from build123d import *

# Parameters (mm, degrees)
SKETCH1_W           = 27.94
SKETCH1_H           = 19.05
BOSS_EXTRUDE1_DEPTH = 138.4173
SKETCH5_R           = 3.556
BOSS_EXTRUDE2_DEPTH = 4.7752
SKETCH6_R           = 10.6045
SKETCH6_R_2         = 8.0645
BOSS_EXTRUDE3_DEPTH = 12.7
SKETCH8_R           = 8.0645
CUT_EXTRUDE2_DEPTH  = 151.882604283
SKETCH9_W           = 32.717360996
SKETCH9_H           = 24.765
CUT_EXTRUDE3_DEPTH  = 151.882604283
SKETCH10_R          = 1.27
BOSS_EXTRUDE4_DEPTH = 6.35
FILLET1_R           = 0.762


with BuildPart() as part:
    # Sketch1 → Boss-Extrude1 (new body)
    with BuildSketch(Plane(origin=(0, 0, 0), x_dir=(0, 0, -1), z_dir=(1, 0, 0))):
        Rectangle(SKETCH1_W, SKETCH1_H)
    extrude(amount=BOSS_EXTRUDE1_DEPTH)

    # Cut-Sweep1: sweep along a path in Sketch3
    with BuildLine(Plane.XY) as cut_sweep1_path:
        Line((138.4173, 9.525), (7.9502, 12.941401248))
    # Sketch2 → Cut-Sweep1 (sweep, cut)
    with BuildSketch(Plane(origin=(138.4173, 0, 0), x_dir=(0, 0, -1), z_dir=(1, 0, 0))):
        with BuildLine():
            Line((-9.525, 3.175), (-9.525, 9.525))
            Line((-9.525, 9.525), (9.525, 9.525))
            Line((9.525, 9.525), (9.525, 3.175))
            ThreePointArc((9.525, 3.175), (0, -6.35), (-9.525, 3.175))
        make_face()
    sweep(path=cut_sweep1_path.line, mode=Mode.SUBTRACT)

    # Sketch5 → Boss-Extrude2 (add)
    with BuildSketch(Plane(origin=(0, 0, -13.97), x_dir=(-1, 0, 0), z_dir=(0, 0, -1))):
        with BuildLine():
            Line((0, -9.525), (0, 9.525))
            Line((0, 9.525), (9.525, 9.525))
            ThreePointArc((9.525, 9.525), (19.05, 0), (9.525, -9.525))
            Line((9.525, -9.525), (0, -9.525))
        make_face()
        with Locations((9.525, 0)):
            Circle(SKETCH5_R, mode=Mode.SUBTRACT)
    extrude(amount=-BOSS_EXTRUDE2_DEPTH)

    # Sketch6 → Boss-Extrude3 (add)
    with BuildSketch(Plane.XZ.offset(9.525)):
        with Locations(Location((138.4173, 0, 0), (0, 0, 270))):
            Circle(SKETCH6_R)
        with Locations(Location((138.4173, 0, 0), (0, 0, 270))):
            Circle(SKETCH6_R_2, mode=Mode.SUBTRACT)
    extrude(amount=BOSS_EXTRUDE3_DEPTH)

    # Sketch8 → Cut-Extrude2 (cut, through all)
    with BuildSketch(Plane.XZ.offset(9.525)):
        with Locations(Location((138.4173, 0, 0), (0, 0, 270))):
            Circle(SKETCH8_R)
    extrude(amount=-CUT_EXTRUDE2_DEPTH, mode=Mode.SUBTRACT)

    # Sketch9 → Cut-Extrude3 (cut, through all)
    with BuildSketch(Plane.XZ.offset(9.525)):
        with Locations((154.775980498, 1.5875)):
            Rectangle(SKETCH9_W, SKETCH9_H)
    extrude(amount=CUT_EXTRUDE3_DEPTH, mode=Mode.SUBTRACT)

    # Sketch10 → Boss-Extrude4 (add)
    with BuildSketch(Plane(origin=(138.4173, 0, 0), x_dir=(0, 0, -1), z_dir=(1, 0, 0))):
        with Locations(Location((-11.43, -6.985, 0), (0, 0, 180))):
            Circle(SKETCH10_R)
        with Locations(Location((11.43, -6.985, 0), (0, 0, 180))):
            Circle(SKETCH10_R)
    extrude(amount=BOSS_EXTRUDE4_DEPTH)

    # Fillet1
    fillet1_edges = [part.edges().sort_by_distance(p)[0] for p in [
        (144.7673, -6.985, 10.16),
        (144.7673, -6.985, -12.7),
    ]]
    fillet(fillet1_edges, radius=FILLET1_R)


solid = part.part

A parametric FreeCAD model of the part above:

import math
import FreeCAD as App
import Part
import Sketcher
Q = App.Units.Quantity


def edges_at(feature, points):
    """Names of the edges that pass closest to the given points."""
    edges = feature.Shape.Edges
    near = lambda p: min(range(len(edges)), key=lambda i: edges[i].distToShape(Part.Vertex(*p))[0])
    return sorted({f"Edge{near(p) + 1}" for p in points})


def add_polygon(sketch, points):
    """Adds a closed chain of lines whose ends are joined by coincident constraints."""
    first, n = sketch.GeometryCount, len(points)
    for a, b in zip(points, points[1:] + points[:1]):
        sketch.addGeometry(Part.LineSegment(App.Vector(*a, 0), App.Vector(*b, 0)), False)
    for i in range(n):
        sketch.addConstraint(Sketcher.Constraint("Coincident", first + i, 2, first + (i + 1) % n, 1))

doc = App.newDocument("Part")
body = doc.addObject("PartDesign::Body", "Body")

sketch1 = doc.addObject("Sketcher::SketchObject", "Sketch")
body.addObject(sketch1)
sketch1.AttachmentSupport = (doc.YZ_Plane, [""])
sketch1.MapMode = "FlatFace"
add_polygon(sketch1, [(10, 14), (-10, 14), (-10, -14), (10, -14)])
sketch1.addConstraint(Sketcher.Constraint("Horizontal", 0))
sketch1.addConstraint(Sketcher.Constraint("Vertical", 1))
sketch1.addConstraint(Sketcher.Constraint("Horizontal", 2))
sketch1.addConstraint(Sketcher.Constraint("Vertical", 3))
sketch1.addConstraint(Sketcher.Constraint("Symmetric", 0, 2, 2, 2, -1, 1))
sketch1.addConstraint(Sketcher.Constraint("DistanceY", 1, 2, 1, 1, Q("1.1 in")))
sketch1.addConstraint(Sketcher.Constraint("DistanceX", 0, 2, 0, 1, Q("0.75 in")))
pad1 = doc.addObject("PartDesign::Pad", "Pad")
body.addObject(pad1)
pad1.Profile = sketch1
pad1.Length = Q("5.4495 in")

sketch2 = doc.addObject("Sketcher::SketchObject", "Sketch001")
body.addObject(sketch2)
sketch2.AttachmentSupport = (doc.YZ_Plane, [""])
sketch2.MapMode = "FlatFace"
sketch2.AttachmentOffset = App.Placement(App.Vector(0, 0, 5.4495 * 25.4), App.Rotation())
sketch2.addGeometry(Part.LineSegment(App.Vector(10, 10, 0), App.Vector(3, 10, 0)), False)
sketch2.addGeometry(Part.ArcOfCircle(Part.Circle(App.Vector(3, 0, 0), App.Vector(0, 0, 1), 10), math.radians(90), math.radians(270)), False)
sketch2.addGeometry(Part.LineSegment(App.Vector(3, -10, 0), App.Vector(10, -10, 0)), False)
sketch2.addGeometry(Part.LineSegment(App.Vector(10, -10, 0), App.Vector(10, 10, 0)), False)
sketch2.addConstraint(Sketcher.Constraint("Tangent", 0, 2, 1, 1))
sketch2.addConstraint(Sketcher.Constraint("Tangent", 1, 2, 2, 1))
sketch2.addConstraint(Sketcher.Constraint("Coincident", 2, 2, 3, 1))
sketch2.addConstraint(Sketcher.Constraint("Coincident", 3, 2, 0, 1))
sketch2.addConstraint(Sketcher.Constraint("Horizontal", 0))
sketch2.addConstraint(Sketcher.Constraint("Horizontal", 2))
sketch2.addConstraint(Sketcher.Constraint("Vertical", 3))
sketch2.addConstraint(Sketcher.Constraint("PointOnObject", 1, 3, -1))
sketch2.addConstraint(Sketcher.Constraint("Radius", 1, Q("0.375 in")))
sketch2.addConstraint(Sketcher.Constraint("DistanceX", 0, 2, 0, 1, Q("0.25 in")))
sketch2.addConstraint(Sketcher.Constraint("DistanceX", -1, 1, 1, 3, Q("0.125 in")))

sketch3 = doc.addObject("Sketcher::SketchObject", "Sketch002")
body.addObject(sketch3)
sketch3.Placement = App.Placement(App.Vector(0.344098, 13.140574, 0), App.Rotation(App.Vector(-0.999657325, 0.026176948, 0), App.Vector(0, 0, 1), App.Vector(0.026176948, 0.999657325, 0), "ZXY"))
sketch3.addGeometry(Part.LineSegment(App.Vector(-138, 0, 0), App.Vector(-8, 0, 0)), False)
sketch3.addConstraint(Sketcher.Constraint("Horizontal", 0))
sketch3.addConstraint(Sketcher.Constraint("PointOnObject", 0, 1, -1))
sketch3.addConstraint(Sketcher.Constraint("DistanceX", 0, 1, 0, 2, Q("130.511823 mm")))
sketch3.addConstraint(Sketcher.Constraint("DistanceX", 0, 2, -1, 1, Q("7.608709 mm")))
doc.recompute()

subtractivepipe = doc.addObject("PartDesign::SubtractivePipe", "SubtractivePipe")
body.addObject(subtractivepipe)
subtractivepipe.Profile = sketch2
subtractivepipe.Spine = (sketch3, ["Edge1"])

sketch4 = doc.addObject("Sketcher::SketchObject", "Sketch003")
body.addObject(sketch4)
sketch4.AttachmentSupport = (doc.XY_Plane, [""])
sketch4.MapMode = "FlatFace"
sketch4.AttachmentOffset = App.Placement(App.Vector(0, 0, -0.55 * 25.4), App.Rotation())
sketch4.addGeometry(Part.LineSegment(App.Vector(0, 9.5, 0), App.Vector(0, -9.5, 0)), False)
sketch4.addGeometry(Part.LineSegment(App.Vector(0, -9.5, 0), App.Vector(-9.5, -9.5, 0)), False)
sketch4.addGeometry(Part.ArcOfCircle(Part.Circle(App.Vector(-9.5, 0, 0), App.Vector(0, 0, 1), 9.5), math.radians(90), math.radians(270)), False)
sketch4.addGeometry(Part.LineSegment(App.Vector(-9.5, 9.5, 0), App.Vector(0, 9.5, 0)), False)
sketch4.addGeometry(Part.Circle(App.Vector(-9.5, 0, 0), App.Vector(0, 0, 1), 3.6), False)
sketch4.addConstraint(Sketcher.Constraint("Coincident", 0, 2, 1, 1))
sketch4.addConstraint(Sketcher.Constraint("Tangent", 1, 2, 2, 2))
sketch4.addConstraint(Sketcher.Constraint("Tangent", 2, 1, 3, 1))
sketch4.addConstraint(Sketcher.Constraint("Coincident", 3, 2, 0, 1))
sketch4.addConstraint(Sketcher.Constraint("Vertical", 0))
sketch4.addConstraint(Sketcher.Constraint("Horizontal", 1))
sketch4.addConstraint(Sketcher.Constraint("Horizontal", 3))
sketch4.addConstraint(Sketcher.Constraint("Coincident", 4, 3, 2, 3))
sketch4.addConstraint(Sketcher.Constraint("Symmetric", 0, 2, 3, 2, -1, 1))
sketch4.addConstraint(Sketcher.Constraint("Diameter", 4, Q("0.28 in")))
sketch4.addConstraint(Sketcher.Constraint("Radius", 2, Q("0.375 in")))
sketch4.addConstraint(Sketcher.Constraint("DistanceX", 1, 2, 1, 1, Q("0.375 in")))
pad2 = doc.addObject("PartDesign::Pad", "Pad001")
body.addObject(pad2)
pad2.Profile = sketch4
pad2.Length = Q("0.188 in")

sketch5 = doc.addObject("Sketcher::SketchObject", "Sketch004")
body.addObject(sketch5)
sketch5.AttachmentSupport = (doc.XZ_Plane, [""])
sketch5.MapMode = "FlatFace"
sketch5.AttachmentOffset = App.Placement(App.Vector(0, 0, 0.375 * 25.4), App.Rotation())
sketch5.addGeometry(Part.Circle(App.Vector(138, 0, 0), App.Vector(0, 0, 1), 11), False)
sketch5.addGeometry(Part.Circle(App.Vector(138, 0, 0), App.Vector(0, 0, 1), 8), False)
sketch5.addConstraint(Sketcher.Constraint("Coincident", 1, 3, 0, 3))
sketch5.addConstraint(Sketcher.Constraint("PointOnObject", 0, 3, -1))
sketch5.addConstraint(Sketcher.Constraint("Diameter", 0, Q("0.835 in")))
sketch5.addConstraint(Sketcher.Constraint("Diameter", 1, Q("0.635 in")))
sketch5.addConstraint(Sketcher.Constraint("DistanceX", -1, 1, 0, 3, Q("5.4495 in")))
pad3 = doc.addObject("PartDesign::Pad", "Pad002")
body.addObject(pad3)
pad3.Profile = sketch5
pad3.Length = Q("0.5 in")

sketch6 = doc.addObject("Sketcher::SketchObject", "Sketch005")
body.addObject(sketch6)
sketch6.AttachmentSupport = (doc.XZ_Plane, [""])
sketch6.MapMode = "FlatFace"
sketch6.AttachmentOffset = App.Placement(App.Vector(0, 0, 0.375 * 25.4), App.Rotation())
sketch6.addGeometry(Part.Circle(App.Vector(138, 0, 0), App.Vector(0, 0, 1), 8), False)
sketch6.addConstraint(Sketcher.Constraint("PointOnObject", 0, 3, -1))
sketch6.addConstraint(Sketcher.Constraint("Diameter", 0, Q("0.635 in")))
sketch6.addConstraint(Sketcher.Constraint("DistanceX", -1, 1, 0, 3, Q("5.4495 in")))
pocket1 = doc.addObject("PartDesign::Pocket", "Pocket")
body.addObject(pocket1)
pocket1.Profile = sketch6
pocket1.Type = "ThroughAll"

sketch7 = doc.addObject("Sketcher::SketchObject", "Sketch006")
body.addObject(sketch7)
sketch7.AttachmentSupport = (doc.XZ_Plane, [""])
sketch7.MapMode = "FlatFace"
sketch7.AttachmentOffset = App.Placement(App.Vector(0, 0, 0.375 * 25.4), App.Rotation())
add_polygon(sketch7, [(138, 14), (138, -11), (171, -11), (171, 14)])
sketch7.addConstraint(Sketcher.Constraint("Vertical", 0))
sketch7.addConstraint(Sketcher.Constraint("Horizontal", 1))
sketch7.addConstraint(Sketcher.Constraint("Vertical", 2))
sketch7.addConstraint(Sketcher.Constraint("Horizontal", 3))
sketch7.addConstraint(Sketcher.Constraint("DistanceY", 0, 2, 0, 1, Q("0.975 in")))
sketch7.addConstraint(Sketcher.Constraint("DistanceY", -1, 1, 2, 2, Q("0.55 in")))
sketch7.addConstraint(Sketcher.Constraint("DistanceX", -1, 1, 0, 2, Q("5.4495 in")))
sketch7.addConstraint(Sketcher.Constraint("DistanceX", 1, 1, 1, 2, Q("32.717361 mm")))
pocket2 = doc.addObject("PartDesign::Pocket", "Pocket001")
body.addObject(pocket2)
pocket2.Profile = sketch7
pocket2.Type = "ThroughAll"
pocket2.Reversed = True

sketch8 = doc.addObject("Sketcher::SketchObject", "Sketch007")
body.addObject(sketch8)
sketch8.AttachmentSupport = (doc.YZ_Plane, [""])
sketch8.MapMode = "FlatFace"
sketch8.AttachmentOffset = App.Placement(App.Vector(0, 0, 5.4495 * 25.4), App.Rotation())
sketch8.addGeometry(Part.Circle(App.Vector(-7, 11.4, 0), App.Vector(0, 0, 1), 1.3), False)
sketch8.addGeometry(Part.Circle(App.Vector(-7, -11.4, 0), App.Vector(0, 0, 1), 1.3), False)
sketch8.addConstraint(Sketcher.Constraint("Equal", 0, 1))
sketch8.addConstraint(Sketcher.Constraint("Symmetric", 0, 3, 1, 3, -1))
sketch8.addConstraint(Sketcher.Constraint("Diameter", 0, Q("0.1 in")))
sketch8.addConstraint(Sketcher.Constraint("DistanceY", 1, 3, 0, 3, Q("0.9 in")))
sketch8.addConstraint(Sketcher.Constraint("DistanceX", 0, 3, -1, 1, Q("0.275 in")))
pad4 = doc.addObject("PartDesign::Pad", "Pad003")
body.addObject(pad4)
pad4.Profile = sketch8
pad4.Length = Q("0.25 in")
doc.recompute()

fillet = doc.addObject("PartDesign::Fillet", "Fillet")
body.addObject(fillet)
fillet.Base = (pad4, edges_at(pad4, [(144.767, -6.985, 10.16), (144.767, -6.985, -12.7)]))
fillet.Radius = Q("0.03 in")

doc.recompute()
